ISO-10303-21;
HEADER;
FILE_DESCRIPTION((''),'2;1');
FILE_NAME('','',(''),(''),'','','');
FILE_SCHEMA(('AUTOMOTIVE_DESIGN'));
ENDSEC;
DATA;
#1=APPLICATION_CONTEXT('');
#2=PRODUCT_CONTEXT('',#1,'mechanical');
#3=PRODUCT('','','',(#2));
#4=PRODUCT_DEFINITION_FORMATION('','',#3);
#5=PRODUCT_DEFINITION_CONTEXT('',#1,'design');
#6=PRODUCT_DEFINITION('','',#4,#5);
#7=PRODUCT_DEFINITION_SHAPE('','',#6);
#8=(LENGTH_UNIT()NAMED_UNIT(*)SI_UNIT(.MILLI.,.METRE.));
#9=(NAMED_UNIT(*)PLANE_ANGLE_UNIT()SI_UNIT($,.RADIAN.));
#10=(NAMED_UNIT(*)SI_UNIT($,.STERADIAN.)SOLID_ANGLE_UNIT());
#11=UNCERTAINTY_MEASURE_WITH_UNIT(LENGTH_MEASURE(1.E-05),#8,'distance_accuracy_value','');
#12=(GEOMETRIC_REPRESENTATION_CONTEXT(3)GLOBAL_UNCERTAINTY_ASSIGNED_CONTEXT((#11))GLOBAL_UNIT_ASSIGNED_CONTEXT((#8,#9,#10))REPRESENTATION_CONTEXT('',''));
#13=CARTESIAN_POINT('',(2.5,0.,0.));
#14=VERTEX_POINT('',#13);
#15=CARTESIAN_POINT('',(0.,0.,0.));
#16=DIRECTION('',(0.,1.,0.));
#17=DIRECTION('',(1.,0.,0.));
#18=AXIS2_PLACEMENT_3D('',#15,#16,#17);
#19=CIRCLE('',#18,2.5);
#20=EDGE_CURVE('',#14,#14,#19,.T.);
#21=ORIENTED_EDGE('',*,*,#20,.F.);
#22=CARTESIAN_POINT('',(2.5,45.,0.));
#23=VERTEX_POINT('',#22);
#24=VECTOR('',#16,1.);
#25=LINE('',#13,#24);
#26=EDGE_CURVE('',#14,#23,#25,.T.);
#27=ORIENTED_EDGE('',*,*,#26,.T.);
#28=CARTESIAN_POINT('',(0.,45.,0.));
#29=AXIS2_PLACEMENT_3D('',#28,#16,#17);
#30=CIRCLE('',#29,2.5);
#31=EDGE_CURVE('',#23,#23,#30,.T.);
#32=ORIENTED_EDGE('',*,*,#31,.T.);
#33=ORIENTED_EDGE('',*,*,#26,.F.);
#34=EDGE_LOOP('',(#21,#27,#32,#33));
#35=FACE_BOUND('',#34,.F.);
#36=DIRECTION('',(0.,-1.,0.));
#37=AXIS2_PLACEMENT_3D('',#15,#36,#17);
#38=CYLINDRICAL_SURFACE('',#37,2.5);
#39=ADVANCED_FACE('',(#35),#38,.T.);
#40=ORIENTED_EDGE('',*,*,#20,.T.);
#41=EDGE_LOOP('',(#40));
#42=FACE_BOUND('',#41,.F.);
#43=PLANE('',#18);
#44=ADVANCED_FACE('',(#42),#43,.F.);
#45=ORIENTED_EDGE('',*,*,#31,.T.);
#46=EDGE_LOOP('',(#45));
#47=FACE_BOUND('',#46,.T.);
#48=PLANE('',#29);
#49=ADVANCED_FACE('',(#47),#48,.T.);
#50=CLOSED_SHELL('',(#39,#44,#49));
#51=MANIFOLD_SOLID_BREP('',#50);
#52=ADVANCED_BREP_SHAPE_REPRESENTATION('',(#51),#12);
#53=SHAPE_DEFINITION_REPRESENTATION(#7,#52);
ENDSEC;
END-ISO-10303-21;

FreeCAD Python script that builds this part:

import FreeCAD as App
import Part
import Sketcher

V = App.Vector

doc = App.newDocument("Part")
body = doc.addObject("PartDesign::Body", "Body")

sketch1 = body.newObject("Sketcher::SketchObject", "Sketch")
sketch1.AttachmentSupport = (doc.getObject("XZ_Plane"), [""])
sketch1.MapMode = "FlatFace"
sketch1.addGeometry(Part.Circle(V(0, 0, 0), V(0, 0, 1), 2.5), False)
sketch1.addConstraint(Sketcher.Constraint("Coincident", 0, 3, -1, 1))
sketch1.addConstraint(Sketcher.Constraint("Diameter", 0, 5.0))
pad1 = body.newObject("PartDesign::Pad", "Pad")
pad1.Profile = sketch1
pad1.Length = 45
pad1.Reversed = True

doc.recompute()
